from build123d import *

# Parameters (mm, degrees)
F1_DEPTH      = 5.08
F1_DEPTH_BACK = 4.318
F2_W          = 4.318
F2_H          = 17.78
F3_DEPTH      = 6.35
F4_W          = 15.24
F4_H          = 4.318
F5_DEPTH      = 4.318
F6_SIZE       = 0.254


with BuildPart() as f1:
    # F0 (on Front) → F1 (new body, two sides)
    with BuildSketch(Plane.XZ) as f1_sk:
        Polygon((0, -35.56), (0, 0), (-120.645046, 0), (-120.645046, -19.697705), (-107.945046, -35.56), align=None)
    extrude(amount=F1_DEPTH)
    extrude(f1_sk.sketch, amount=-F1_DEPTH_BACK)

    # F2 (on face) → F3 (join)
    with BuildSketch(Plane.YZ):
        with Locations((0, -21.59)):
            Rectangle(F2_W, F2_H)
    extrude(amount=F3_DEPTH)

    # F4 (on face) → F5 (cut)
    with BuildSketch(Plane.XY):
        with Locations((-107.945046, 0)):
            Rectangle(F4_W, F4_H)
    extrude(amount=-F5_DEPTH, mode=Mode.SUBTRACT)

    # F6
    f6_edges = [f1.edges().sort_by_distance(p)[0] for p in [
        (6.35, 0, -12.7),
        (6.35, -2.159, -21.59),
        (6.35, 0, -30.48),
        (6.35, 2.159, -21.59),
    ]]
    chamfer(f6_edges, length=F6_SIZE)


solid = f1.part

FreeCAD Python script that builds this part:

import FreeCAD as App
import Part
import Sketcher

V = App.Vector
Q = App.Units.Quantity


def edges_at(feature, points):
    """Names of the edges that pass closest to the given points."""
    edges = feature.Shape.Edges
    near = lambda p: min(range(len(edges)), key=lambda i: edges[i].distToShape(Part.Vertex(*p))[0])
    return sorted({f"Edge{near(p) + 1}" for p in points})

doc = App.newDocument("Part")
body = doc.addObject("PartDesign::Body", "Body")

# Sketch on XZ plane
sketch1 = doc.addObject("Sketcher::SketchObject", "Sketch")
body.addObject(sketch1)
sketch1.AttachmentSupport = (doc.XZ_Plane, [""])
sketch1.MapMode = "FlatFace"
sketch1.addGeometry([
    Part.LineSegment(V(0, -36, 0), V(0, 0, 0)),  # 0
    Part.LineSegment(V(0, 0, 0), V(-121, 0, 0)),  # 1
    Part.LineSegment(V(-121, 0, 0), V(-121, -20, 0)),  # 2
    Part.LineSegment(V(-121, -20, 0), V(-108, -36, 0)),  # 3
    Part.LineSegment(V(-108, -36, 0), V(0, -36, 0)),  # 4
], False)
sketch1.addConstraint([
    Sketcher.Constraint("Coincident", 0, 2, 1, 1),
    Sketcher.Constraint("Coincident", 1, 2, 2, 1),
    Sketcher.Constraint("Coincident", 2, 2, 3, 1),
    Sketcher.Constraint("Coincident", 3, 2, 4, 1),
    Sketcher.Constraint("Coincident", 4, 2, 0, 1),
    Sketcher.Constraint("Vertical", 0),
    Sketcher.Constraint("Horizontal", 1),
    Sketcher.Constraint("Vertical", 2),
    Sketcher.Constraint("Horizontal", 4),
    Sketcher.Constraint("Coincident", 0, 2, -1, 1),
    Sketcher.Constraint("DistanceY", 0, 1, 0, 2, Q("1.4 in")),
    Sketcher.Constraint("Distance", 3, Q("0.8 in")),
    Sketcher.Constraint("DistanceX", 2, 2, 3, 2, Q("0.5 in")),
    Sketcher.Constraint("DistanceX", 1, 2, 1, 1, Q("120.645046 mm")),
])
pad1 = doc.addObject("PartDesign::Pad", "Pad")
body.addObject(pad1)
pad1.Profile = sketch1
pad1.Type = "TwoLengths"
pad1.Length = Q("0.2 in")
pad1.Length2 = Q("0.17 in")

# Sketch on YZ plane
sketch2 = doc.addObject("Sketcher::SketchObject", "Sketch001")
body.addObject(sketch2)
sketch2.AttachmentSupport = (doc.YZ_Plane, [""])
sketch2.MapMode = "FlatFace"
sketch2.addGeometry([
    Part.LineSegment(V(-2.2, -12.7, 0), V(-2.2, -30.5, 0)),
    Part.LineSegment(V(-2.2, -30.5, 0), V(2.2, -30.5, 0)),
    Part.LineSegment(V(2.2, -30.5, 0), V(2.2, -12.7, 0)),
    Part.LineSegment(V(2.2, -12.7, 0), V(-2.2, -12.7, 0)),
], False)
sketch2.addConstraint([
    Sketcher.Constraint("Coincident", 0, 2, 1, 1),
    Sketcher.Constraint("Coincident", 1, 2, 2, 1),
    Sketcher.Constraint("Coincident", 2, 2, 3, 1),
    Sketcher.Constraint("Coincident", 3, 2, 0, 1),
    Sketcher.Constraint("Vertical", 0),
    Sketcher.Constraint("Horizontal", 1),
    Sketcher.Constraint("Vertical", 2),
    Sketcher.Constraint("Horizontal", 3),
    Sketcher.Constraint("DistanceY", 0, 2, 0, 1, Q("0.7 in")),
    Sketcher.Constraint("DistanceX", 1, 1, 1, 2, Q("0.17 in")),
    Sketcher.Constraint("DistanceY", 0, 2, -1, 1, Q("1.2 in")),
    Sketcher.Constraint("DistanceX", 0, 2, -1, 1, Q("0.085 in")),
])
pad2 = doc.addObject("PartDesign::Pad", "Pad001")
body.addObject(pad2)
pad2.Profile = sketch2
pad2.Length = Q("0.25 in")

# Sketch on XY plane
sketch3 = doc.addObject("Sketcher::SketchObject", "Sketch002")
body.addObject(sketch3)
sketch3.AttachmentSupport = (doc.XY_Plane, [""])
sketch3.MapMode = "FlatFace"
sketch3.addGeometry([
    Part.LineSegment(V(-115.6, 2.2, 0), V(-115.6, -2.2, 0)),
    Part.LineSegment(V(-115.6, -2.2, 0), V(-100.3, -2.2, 0)),
    Part.LineSegment(V(-100.3, -2.2, 0), V(-100.3, 2.2, 0)),
    Part.LineSegment(V(-100.3, 2.2, 0), V(-115.6, 2.2, 0)),
], False)
sketch3.addConstraint([
    Sketcher.Constraint("Coincident", 0, 2, 1, 1),
    Sketcher.Constraint("Coincident", 1, 2, 2, 1),
    Sketcher.Constraint("Coincident", 2, 2, 3, 1),
    Sketcher.Constraint("Coincident", 3, 2, 0, 1),
    Sketcher.Constraint("Vertical", 0),
    Sketcher.Constraint("Horizontal", 1),
    Sketcher.Constraint("Vertical", 2),
    Sketcher.Constraint("Horizontal", 3),
    Sketcher.Constraint("DistanceX", 1, 1, 1, 2, Q("0.6 in")),
    Sketcher.Constraint("DistanceY", 0, 2, 0, 1, Q("0.17 in")),
    Sketcher.Constraint("DistanceY", 0, 2, -1, 1, Q("0.085 in")),
    Sketcher.Constraint("DistanceX", 0, 2, -1, 1, Q("115.565046 mm")),
])
pocket1 = doc.addObject("PartDesign::Pocket", "Pocket")
body.addObject(pocket1)
pocket1.Profile = sketch3
pocket1.Length = Q("0.17 in")
doc.recompute()

chamfer = doc.addObject("PartDesign::Chamfer", "Chamfer")
body.addObject(chamfer)
chamfer.Base = (pocket1, edges_at(pocket1, [
    (6.35, 0, -12.7),
    (6.35, -2.159, -21.59),
    (6.35, 0, -30.48),
    (6.35, 2.159, -21.59),
]))
chamfer.Size = Q("0.01 in")

doc.recompute()
